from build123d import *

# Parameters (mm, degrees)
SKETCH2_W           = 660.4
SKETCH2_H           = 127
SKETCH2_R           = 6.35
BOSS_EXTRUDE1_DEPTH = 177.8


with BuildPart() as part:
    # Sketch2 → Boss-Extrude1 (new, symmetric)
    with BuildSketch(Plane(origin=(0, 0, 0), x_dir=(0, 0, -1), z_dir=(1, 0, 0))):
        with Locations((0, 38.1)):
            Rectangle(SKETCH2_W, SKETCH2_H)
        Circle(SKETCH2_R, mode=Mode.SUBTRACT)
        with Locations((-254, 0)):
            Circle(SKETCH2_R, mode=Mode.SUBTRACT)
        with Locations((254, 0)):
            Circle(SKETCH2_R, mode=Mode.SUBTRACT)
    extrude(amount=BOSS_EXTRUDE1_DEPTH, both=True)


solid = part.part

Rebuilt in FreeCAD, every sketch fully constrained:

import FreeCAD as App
import Part
import Sketcher

V = App.Vector
Q = App.Units.Quantity


def add_polygon(sketch, points):
    """Adds a closed chain of lines whose ends are joined by coincident constraints."""
    first, n = sketch.GeometryCount, len(points)
    for a, b in zip(points, points[1:] + points[:1]):
        sketch.addGeometry(Part.LineSegment(App.Vector(*a, 0), App.Vector(*b, 0)), False)
    for i in range(n):
        sketch.addConstraint(Sketcher.Constraint("Coincident", first + i, 2, first + (i + 1) % n, 1))

doc = App.newDocument("Part")
params = doc.addObject("Spreadsheet::Sheet", "Params")
for row, (alias, value) in enumerate([
    ("sketch1_diameter", "0.5 in"),
    ("sketch1_width", "5 in"),
    ("sketch1_height", "26 in"),
    ("pad1_length", "14 in"),
], start=1):
    params.set(f"A{row}", alias)
    params.set(f"B{row}", "=" + value)
    params.setAlias(f"B{row}", alias)

body = doc.addObject("PartDesign::Body", "Body")

sketch1 = doc.addObject("Sketcher::SketchObject", "Sketch")
body.addObject(sketch1)
sketch1.AttachmentSupport = (doc.YZ_Plane, [""])
sketch1.MapMode = "FlatFace"
add_polygon(sketch1, [(102, 330), (-25, 330), (-25, -330), (102, -330)])
sketch1.addGeometry(Part.Circle(V(0, 254, 0), V(0, 0, 1), 6), False)
sketch1.addGeometry(Part.Circle(V(0, 0, 0), V(0, 0, 1), 6), False)
sketch1.addGeometry(Part.Circle(V(0, -254, 0), V(0, 0, 1), 6), False)
sketch1.addConstraint(Sketcher.Constraint("Horizontal", 0))
sketch1.addConstraint(Sketcher.Constraint("Vertical", 1))
sketch1.addConstraint(Sketcher.Constraint("Horizontal", 2))
sketch1.addConstraint(Sketcher.Constraint("Vertical", 3))
sketch1.addConstraint(Sketcher.Constraint("Coincident", 5, 3, -1, 1))
sketch1.addConstraint(Sketcher.Constraint("Equal", 4, 5))
sketch1.addConstraint(Sketcher.Constraint("Equal", 5, 6))
sketch1.addConstraint(Sketcher.Constraint("Symmetric", 4, 3, 6, 3, -1, 1))
sketch1.addConstraint(Sketcher.Constraint("PointOnObject", 4, 3, -2))
sketch1.addConstraint(Sketcher.Constraint("Diameter", 4, Q("0.5 in")))
sketch1.addConstraint(Sketcher.Constraint("DistanceX", 0, 2, 0, 1, Q("5 in")))
sketch1.addConstraint(Sketcher.Constraint("DistanceY", 1, 2, 1, 1, Q("26 in")))
sketch1.addConstraint(Sketcher.Constraint("DistanceY", -1, 1, 4, 3, Q("10 in")))
sketch1.addConstraint(Sketcher.Constraint("DistanceX", 0, 2, -1, 1, Q("1 in")))
sketch1.addConstraint(Sketcher.Constraint("DistanceY", -1, 1, 0, 2, Q("13 in")))
sketch1.setExpression("Constraints[13]", "Params.sketch1_diameter")
sketch1.setExpression("Constraints[14]", "Params.sketch1_width")
sketch1.setExpression("Constraints[15]", "Params.sketch1_height")
pad1 = doc.addObject("PartDesign::Pad", "Pad")
body.addObject(pad1)
pad1.Profile = sketch1
pad1.setExpression("Length", "Params.pad1_length")
pad1.Midplane = True

doc.recompute()
